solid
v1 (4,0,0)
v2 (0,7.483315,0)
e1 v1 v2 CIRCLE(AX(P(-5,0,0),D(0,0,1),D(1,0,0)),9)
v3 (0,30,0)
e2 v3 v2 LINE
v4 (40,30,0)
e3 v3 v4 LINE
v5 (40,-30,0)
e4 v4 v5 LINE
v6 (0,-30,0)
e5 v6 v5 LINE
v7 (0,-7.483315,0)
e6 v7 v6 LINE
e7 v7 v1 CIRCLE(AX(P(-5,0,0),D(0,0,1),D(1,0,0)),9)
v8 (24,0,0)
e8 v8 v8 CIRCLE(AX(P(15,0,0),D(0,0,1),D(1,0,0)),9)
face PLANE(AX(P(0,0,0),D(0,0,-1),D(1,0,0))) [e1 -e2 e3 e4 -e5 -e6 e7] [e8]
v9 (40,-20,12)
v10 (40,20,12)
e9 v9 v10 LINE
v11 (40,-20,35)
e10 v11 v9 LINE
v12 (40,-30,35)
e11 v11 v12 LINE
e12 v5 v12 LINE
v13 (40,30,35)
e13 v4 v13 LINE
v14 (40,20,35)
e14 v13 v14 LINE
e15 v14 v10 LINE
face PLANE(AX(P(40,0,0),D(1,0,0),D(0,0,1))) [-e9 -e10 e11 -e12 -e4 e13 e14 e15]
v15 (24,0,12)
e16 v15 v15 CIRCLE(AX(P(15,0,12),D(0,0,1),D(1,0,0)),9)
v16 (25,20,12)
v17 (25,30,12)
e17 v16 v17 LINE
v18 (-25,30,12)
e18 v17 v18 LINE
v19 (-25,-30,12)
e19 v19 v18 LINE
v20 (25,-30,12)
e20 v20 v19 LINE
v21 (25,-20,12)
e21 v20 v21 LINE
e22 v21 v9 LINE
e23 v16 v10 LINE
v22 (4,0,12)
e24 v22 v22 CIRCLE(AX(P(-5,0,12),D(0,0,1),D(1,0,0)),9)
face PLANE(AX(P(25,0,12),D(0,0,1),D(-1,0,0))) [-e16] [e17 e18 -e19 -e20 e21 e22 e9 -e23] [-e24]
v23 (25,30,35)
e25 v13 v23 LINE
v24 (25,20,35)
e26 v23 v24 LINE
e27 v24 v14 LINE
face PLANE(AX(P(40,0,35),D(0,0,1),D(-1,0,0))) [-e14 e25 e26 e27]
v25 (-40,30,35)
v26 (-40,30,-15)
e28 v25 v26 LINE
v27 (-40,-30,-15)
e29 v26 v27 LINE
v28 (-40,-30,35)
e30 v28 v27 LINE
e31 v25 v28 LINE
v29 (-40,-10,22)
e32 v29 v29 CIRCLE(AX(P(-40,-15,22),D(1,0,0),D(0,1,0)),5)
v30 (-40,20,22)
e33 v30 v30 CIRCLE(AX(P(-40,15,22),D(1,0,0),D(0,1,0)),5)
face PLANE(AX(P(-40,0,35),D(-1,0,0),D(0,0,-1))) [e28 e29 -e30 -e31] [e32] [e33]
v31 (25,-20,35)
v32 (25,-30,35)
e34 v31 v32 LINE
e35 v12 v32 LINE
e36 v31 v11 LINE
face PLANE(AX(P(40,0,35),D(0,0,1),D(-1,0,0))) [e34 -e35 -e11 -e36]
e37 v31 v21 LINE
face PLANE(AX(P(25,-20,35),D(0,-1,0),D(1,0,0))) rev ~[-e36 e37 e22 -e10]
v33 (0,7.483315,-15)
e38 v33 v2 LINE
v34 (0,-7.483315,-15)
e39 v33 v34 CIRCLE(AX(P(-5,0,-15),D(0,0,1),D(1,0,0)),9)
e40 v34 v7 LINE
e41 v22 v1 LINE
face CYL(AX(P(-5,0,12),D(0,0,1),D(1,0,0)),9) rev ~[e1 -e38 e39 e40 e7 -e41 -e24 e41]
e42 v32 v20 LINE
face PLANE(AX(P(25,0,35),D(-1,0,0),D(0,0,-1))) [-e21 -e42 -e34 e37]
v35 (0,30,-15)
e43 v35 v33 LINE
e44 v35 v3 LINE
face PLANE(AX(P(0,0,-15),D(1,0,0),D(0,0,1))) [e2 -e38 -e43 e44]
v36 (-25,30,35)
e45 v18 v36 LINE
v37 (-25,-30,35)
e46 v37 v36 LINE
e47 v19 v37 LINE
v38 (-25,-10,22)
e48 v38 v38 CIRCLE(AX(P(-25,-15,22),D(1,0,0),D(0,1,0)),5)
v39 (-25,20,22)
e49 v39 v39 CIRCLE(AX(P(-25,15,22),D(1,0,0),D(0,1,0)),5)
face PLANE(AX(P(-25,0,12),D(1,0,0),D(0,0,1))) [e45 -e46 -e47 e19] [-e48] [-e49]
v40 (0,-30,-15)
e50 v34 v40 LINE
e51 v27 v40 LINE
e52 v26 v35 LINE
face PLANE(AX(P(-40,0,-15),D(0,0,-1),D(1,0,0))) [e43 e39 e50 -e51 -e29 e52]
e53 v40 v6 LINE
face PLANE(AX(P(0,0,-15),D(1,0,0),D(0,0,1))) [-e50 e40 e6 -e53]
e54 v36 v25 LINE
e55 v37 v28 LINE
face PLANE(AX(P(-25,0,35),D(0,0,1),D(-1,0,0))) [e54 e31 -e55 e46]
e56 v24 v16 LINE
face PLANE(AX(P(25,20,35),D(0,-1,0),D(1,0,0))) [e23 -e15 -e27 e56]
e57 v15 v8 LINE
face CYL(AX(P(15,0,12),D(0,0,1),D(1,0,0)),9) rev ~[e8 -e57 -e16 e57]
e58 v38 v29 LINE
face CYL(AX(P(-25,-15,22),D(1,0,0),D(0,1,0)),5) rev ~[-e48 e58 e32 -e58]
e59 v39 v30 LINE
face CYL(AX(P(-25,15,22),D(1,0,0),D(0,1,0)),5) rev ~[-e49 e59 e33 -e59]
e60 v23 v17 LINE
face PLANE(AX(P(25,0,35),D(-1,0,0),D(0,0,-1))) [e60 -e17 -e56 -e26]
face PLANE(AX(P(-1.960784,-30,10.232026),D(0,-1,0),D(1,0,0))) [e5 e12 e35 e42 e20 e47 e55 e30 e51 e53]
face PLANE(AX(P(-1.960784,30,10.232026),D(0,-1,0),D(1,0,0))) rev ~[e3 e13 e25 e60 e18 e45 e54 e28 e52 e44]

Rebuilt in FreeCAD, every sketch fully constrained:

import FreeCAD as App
import Part
import Sketcher

V = App.Vector
Q = App.Units.Quantity


def add_polygon(sketch, points):
    """Adds a closed chain of lines whose ends are joined by coincident constraints."""
    first, n = sketch.GeometryCount, len(points)
    for a, b in zip(points, points[1:] + points[:1]):
        sketch.addGeometry(Part.LineSegment(App.Vector(*a, 0), App.Vector(*b, 0)), False)
    for i in range(n):
        sketch.addConstraint(Sketcher.Constraint("Coincident", first + i, 2, first + (i + 1) % n, 1))

doc = App.newDocument("Part")
body = doc.addObject("PartDesign::Body", "Body")

# Sketch on XZ plane
sketch1 = body.newObject("Sketcher::SketchObject", "Sketch")
sketch1.AttachmentSupport = (doc.getObject("XZ_Plane"), [""])
sketch1.MapMode = "FlatFace"
add_polygon(sketch1, [(-25, 35), (-40, 35), (-40, -15), (0, -15), (0, 0), (40, 0), (40, 35), (25, 35), (25, 12), (-25, 12)])  # lines 0-9
sketch1.addConstraint(Sketcher.Constraint("Horizontal", 0))
sketch1.addConstraint(Sketcher.Constraint("Vertical", 1))
sketch1.addConstraint(Sketcher.Constraint("Horizontal", 2))
sketch1.addConstraint(Sketcher.Constraint("Vertical", 3))
sketch1.addConstraint(Sketcher.Constraint("Horizontal", 4))
sketch1.addConstraint(Sketcher.Constraint("Vertical", 5))
sketch1.addConstraint(Sketcher.Constraint("Horizontal", 6))
sketch1.addConstraint(Sketcher.Constraint("Vertical", 7))
sketch1.addConstraint(Sketcher.Constraint("Horizontal", 8))
sketch1.addConstraint(Sketcher.Constraint("Vertical", 9))
sketch1.addConstraint(Sketcher.Constraint("Coincident", 3, 2, -1, 1))
sketch1.addConstraint(Sketcher.Constraint("Symmetric", 0, 2, 5, 2, -2))
sketch1.addConstraint(Sketcher.Constraint("Equal", 0, 6))
sketch1.addConstraint(Sketcher.Constraint("Equal", 8, 1))
sketch1.addConstraint(Sketcher.Constraint("Equal", 6, 3))
sketch1.addConstraint(Sketcher.Constraint("DistanceX", 0, 2, 0, 1, Q("15 mm")))
sketch1.addConstraint(Sketcher.Constraint("DistanceX", 2, 1, 2, 2, Q("40 mm")))
sketch1.addConstraint(Sketcher.Constraint("DistanceY", 7, 2, 7, 1, Q("23 mm")))
pad1 = body.newObject("PartDesign::Pad", "Pad")
pad1.Profile = sketch1
pad1.Length = 60
pad1.Midplane = True

# Sketch on XY plane
sketch2 = body.newObject("Sketcher::SketchObject", "Sketch001")
sketch2.AttachmentSupport = (doc.getObject("XY_Plane"), [""])
sketch2.MapMode = "FlatFace"
sketch2.AttachmentOffset = App.Placement(V(0, 0, 35), App.Rotation())
add_polygon(sketch2, [(25, 20), (25, -20), (40, -20), (40, 20)])  # lines 0-3
sketch2.addConstraint(Sketcher.Constraint("Vertical", 0))
sketch2.addConstraint(Sketcher.Constraint("Horizontal", 1))
sketch2.addConstraint(Sketcher.Constraint("Vertical", 2))
sketch2.addConstraint(Sketcher.Constraint("Horizontal", 3))
sketch2.addConstraint(Sketcher.Constraint("DistanceX", 1, 1, 1, 2, Q("15 mm")))
sketch2.addConstraint(Sketcher.Constraint("DistanceY", 0, 2, 0, 1, Q("40 mm")))
sketch2.addConstraint(Sketcher.Constraint("DistanceX", -1, 1, 0, 2, Q("25 mm")))
sketch2.addConstraint(Sketcher.Constraint("DistanceY", 0, 2, -1, 1, Q("20 mm")))
pocket1 = body.newObject("PartDesign::Pocket", "Pocket")
pocket1.Profile = sketch2
pocket1.Length = 23

# Sketch on YZ plane
sketch3 = body.newObject("Sketcher::SketchObject", "Sketch002")
sketch3.AttachmentSupport = (doc.getObject("YZ_Plane"), [""])
sketch3.MapMode = "FlatFace"
sketch3.AttachmentOffset = App.Placement(V(0, 0, -25), App.Rotation())
sketch3.addGeometry(Part.Circle(V(-15, 22, 0), V(0, 0, 1), 5), False)
sketch3.addGeometry(Part.Circle(V(15, 22, 0), V(0, 0, 1), 5), False)
sketch3.addConstraint(Sketcher.Constraint("Equal", 0, 1))
sketch3.addConstraint(Sketcher.Constraint("Symmetric", 0, 3, 1, 3, -2))
sketch3.addConstraint(Sketcher.Constraint("Diameter", 0, Q("10 mm")))
sketch3.addConstraint(Sketcher.Constraint("DistanceX", 0, 3, -1, 1, Q("15 mm")))
sketch3.addConstraint(Sketcher.Constraint("DistanceY", -1, 1, 0, 3, Q("22 mm")))
pocket2 = body.newObject("PartDesign::Pocket", "Pocket001")
pocket2.Profile = sketch3
pocket2.Type = "ThroughAll"

# Sketch on XY plane
sketch4 = body.newObject("Sketcher::SketchObject", "Sketch003")
sketch4.AttachmentSupport = (doc.getObject("XY_Plane"), [""])
sketch4.MapMode = "FlatFace"
sketch4.AttachmentOffset = App.Placement(V(0, 0, 12), App.Rotation())
sketch4.addGeometry(Part.Circle(V(-5, 0, 0), V(0, 0, 1), 9), False)
sketch4.addGeometry(Part.Circle(V(15, 0, 0), V(0, 0, 1), 9), False)
sketch4.addConstraint(Sketcher.Constraint("Equal", 0, 1))
sketch4.addConstraint(Sketcher.Constraint("PointOnObject", 0, 3, -1))
sketch4.addConstraint(Sketcher.Constraint("PointOnObject", 1, 3, -1))
sketch4.addConstraint(Sketcher.Constraint("Diameter", 0, Q("18 mm")))
sketch4.addConstraint(Sketcher.Constraint("DistanceX", 0, 3, -1, 1, Q("5 mm")))
sketch4.addConstraint(Sketcher.Constraint("DistanceX", -1, 1, 1, 3, Q("15 mm")))
pocket3 = body.newObject("PartDesign::Pocket", "Pocket002")
pocket3.Profile = sketch4
pocket3.Type = "ThroughAll"

doc.recompute()
